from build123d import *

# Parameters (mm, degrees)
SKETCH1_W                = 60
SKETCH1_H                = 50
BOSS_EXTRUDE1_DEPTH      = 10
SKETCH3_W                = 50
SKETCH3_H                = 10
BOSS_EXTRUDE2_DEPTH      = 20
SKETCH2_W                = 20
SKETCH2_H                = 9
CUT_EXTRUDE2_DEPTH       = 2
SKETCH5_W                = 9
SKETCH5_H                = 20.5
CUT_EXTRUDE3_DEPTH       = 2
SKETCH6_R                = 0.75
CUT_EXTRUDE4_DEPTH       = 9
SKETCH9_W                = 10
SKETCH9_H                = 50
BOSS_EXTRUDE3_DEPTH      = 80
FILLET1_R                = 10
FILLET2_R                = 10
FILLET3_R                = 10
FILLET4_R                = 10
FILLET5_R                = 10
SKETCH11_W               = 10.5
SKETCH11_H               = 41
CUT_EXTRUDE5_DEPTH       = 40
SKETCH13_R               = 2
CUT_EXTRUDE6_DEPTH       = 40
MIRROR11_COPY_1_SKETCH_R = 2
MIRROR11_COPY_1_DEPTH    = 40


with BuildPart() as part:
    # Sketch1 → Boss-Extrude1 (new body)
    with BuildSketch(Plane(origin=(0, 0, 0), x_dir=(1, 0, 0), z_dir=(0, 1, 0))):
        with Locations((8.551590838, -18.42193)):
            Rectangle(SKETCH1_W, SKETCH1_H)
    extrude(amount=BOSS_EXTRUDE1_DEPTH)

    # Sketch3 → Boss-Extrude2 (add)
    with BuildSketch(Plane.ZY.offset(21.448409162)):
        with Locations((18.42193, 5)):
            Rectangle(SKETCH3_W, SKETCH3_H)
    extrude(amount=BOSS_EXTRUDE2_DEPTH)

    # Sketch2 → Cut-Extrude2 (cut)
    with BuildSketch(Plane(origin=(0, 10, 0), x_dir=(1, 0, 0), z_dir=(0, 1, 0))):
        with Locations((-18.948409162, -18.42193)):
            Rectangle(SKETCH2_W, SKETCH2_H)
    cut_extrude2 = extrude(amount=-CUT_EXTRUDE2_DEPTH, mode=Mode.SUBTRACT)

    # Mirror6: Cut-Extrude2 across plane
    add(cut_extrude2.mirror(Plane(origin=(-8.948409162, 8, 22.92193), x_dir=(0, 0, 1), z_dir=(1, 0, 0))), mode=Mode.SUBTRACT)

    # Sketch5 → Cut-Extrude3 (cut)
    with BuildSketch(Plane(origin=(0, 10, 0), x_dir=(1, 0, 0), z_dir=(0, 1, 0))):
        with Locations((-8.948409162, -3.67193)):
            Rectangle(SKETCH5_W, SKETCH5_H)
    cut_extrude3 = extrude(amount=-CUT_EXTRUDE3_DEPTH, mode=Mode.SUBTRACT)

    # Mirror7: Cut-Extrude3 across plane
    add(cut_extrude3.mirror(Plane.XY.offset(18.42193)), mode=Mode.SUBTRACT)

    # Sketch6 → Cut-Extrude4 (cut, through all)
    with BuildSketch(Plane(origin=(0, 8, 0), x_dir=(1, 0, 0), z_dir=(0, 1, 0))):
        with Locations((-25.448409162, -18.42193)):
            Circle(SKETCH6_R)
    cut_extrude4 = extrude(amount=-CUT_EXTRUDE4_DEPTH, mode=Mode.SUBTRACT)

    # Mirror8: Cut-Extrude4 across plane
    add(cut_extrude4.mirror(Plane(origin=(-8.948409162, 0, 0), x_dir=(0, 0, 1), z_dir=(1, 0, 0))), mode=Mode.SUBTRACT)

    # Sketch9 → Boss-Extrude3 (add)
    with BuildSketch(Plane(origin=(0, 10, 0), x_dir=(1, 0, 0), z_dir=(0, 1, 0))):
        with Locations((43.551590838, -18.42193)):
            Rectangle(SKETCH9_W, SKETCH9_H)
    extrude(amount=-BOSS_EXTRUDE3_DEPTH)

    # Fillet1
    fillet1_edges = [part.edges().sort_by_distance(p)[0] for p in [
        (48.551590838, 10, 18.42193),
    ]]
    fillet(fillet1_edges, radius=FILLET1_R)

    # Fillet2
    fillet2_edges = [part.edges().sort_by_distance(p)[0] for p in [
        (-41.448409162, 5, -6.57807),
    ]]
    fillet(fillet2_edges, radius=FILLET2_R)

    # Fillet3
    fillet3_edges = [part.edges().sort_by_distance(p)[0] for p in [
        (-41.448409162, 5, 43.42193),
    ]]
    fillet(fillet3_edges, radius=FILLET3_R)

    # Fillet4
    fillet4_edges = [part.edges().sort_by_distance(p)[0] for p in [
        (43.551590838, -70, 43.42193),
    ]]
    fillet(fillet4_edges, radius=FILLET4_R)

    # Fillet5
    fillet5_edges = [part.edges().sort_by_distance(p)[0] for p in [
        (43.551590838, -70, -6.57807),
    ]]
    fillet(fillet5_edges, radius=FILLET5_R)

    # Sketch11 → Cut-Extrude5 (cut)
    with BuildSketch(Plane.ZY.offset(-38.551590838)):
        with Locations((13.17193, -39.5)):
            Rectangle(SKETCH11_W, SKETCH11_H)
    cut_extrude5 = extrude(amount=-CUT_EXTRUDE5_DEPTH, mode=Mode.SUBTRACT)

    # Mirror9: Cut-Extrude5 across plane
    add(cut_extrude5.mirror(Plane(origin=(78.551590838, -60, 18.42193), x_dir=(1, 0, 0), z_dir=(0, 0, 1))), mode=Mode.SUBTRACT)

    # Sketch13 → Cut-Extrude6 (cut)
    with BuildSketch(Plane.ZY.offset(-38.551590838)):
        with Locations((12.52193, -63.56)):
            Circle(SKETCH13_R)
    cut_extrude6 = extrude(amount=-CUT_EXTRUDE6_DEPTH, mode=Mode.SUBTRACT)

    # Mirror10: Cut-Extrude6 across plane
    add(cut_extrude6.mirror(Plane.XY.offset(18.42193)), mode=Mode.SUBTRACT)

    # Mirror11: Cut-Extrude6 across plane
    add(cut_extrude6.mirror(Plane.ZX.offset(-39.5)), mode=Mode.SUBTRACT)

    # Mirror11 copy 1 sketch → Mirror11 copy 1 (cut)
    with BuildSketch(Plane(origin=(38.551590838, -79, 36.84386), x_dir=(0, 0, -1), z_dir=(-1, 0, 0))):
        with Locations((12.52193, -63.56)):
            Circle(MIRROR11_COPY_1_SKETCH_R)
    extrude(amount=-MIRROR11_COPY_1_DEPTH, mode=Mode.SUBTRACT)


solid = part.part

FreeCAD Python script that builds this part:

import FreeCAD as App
import Part
import Sketcher
from FreeCAD import Vector


def edges_at(feature, points):
    """Names of the edges that pass closest to the given points."""
    edges = feature.Shape.Edges
    near = lambda p: min(range(len(edges)), key=lambda i: edges[i].distToShape(Part.Vertex(*p))[0])
    return sorted({f"Edge{near(p) + 1}" for p in points})


def add_polygon(sketch, points):
    """Adds a closed chain of lines whose ends are joined by coincident constraints."""
    first, n = sketch.GeometryCount, len(points)
    for a, b in zip(points, points[1:] + points[:1]):
        sketch.addGeometry(Part.LineSegment(App.Vector(*a, 0), App.Vector(*b, 0)), False)
    for i in range(n):
        sketch.addConstraint(Sketcher.Constraint("Coincident", first + i, 2, first + (i + 1) % n, 1))

doc = App.newDocument("Part")
body = doc.addObject("PartDesign::Body", "Body")

sketch1 = body.newObject("Sketcher::SketchObject", "Sketch")
sketch1.AttachmentSupport = (doc.getObject("XZ_Plane"), [""])
sketch1.MapMode = "FlatFace"
add_polygon(sketch1, [(-21, -7), (-21, 43), (39, 43), (39, -7)])
sketch1.addConstraint([
    Sketcher.Constraint("Vertical", 0),
    Sketcher.Constraint("Horizontal", 1),
    Sketcher.Constraint("Vertical", 2),
    Sketcher.Constraint("Horizontal", 3),
    Sketcher.Constraint("DistanceX", 1, 1, 1, 2, 60.0),
    Sketcher.Constraint("DistanceY", 0, 1, 0, 2, 50.0),
    Sketcher.Constraint("DistanceX", 0, 2, -1, 1, 21.448409),
    Sketcher.Constraint("DistanceY", -1, 1, 0, 2, 43.42193),
])
pad1 = body.newObject("PartDesign::Pad", "Pad")
pad1.Profile = sketch1
pad1.Length = 10
pad1.Reversed = True

sketch2 = body.newObject("Sketcher::SketchObject", "Sketch001")
sketch2.AttachmentSupport = (doc.getObject("YZ_Plane"), [""])
sketch2.MapMode = "FlatFace"
sketch2.AttachmentOffset = App.Placement(Vector(0, 0, -21.448409), App.Rotation())
add_polygon(sketch2, [(10, -7), (0, -7), (0, 43), (10, 43)])
sketch2.addConstraint([
    Sketcher.Constraint("Horizontal", 0),
    Sketcher.Constraint("Vertical", 1),
    Sketcher.Constraint("Horizontal", 2),
    Sketcher.Constraint("Vertical", 3),
    Sketcher.Constraint("PointOnObject", 0, 2, -2),
    Sketcher.Constraint("DistanceX", 0, 2, 0, 1, 10.0),
    Sketcher.Constraint("DistanceY", 1, 1, 1, 2, 50.0),
    Sketcher.Constraint("DistanceY", 0, 2, -1, 1, 6.57807),
])
pad2 = body.newObject("PartDesign::Pad", "Pad001")
pad2.Profile = sketch2
pad2.Length = 20
pad2.Reversed = True

sketch3 = body.newObject("Sketcher::SketchObject", "Sketch002")
sketch3.AttachmentSupport = (doc.getObject("XZ_Plane"), [""])
sketch3.MapMode = "FlatFace"
sketch3.AttachmentOffset = App.Placement(Vector(0, 0, -10), App.Rotation())
add_polygon(sketch3, [(-29, 14), (-29, 23), (-9, 23), (-9, 14)])
sketch3.addConstraint([
    Sketcher.Constraint("Vertical", 0),
    Sketcher.Constraint("Horizontal", 1),
    Sketcher.Constraint("Vertical", 2),
    Sketcher.Constraint("Horizontal", 3),
    Sketcher.Constraint("DistanceX", 1, 1, 1, 2, 20.0),
    Sketcher.Constraint("DistanceY", 0, 1, 0, 2, 9.0),
    Sketcher.Constraint("DistanceX", 0, 2, -1, 1, 28.948409),
    Sketcher.Constraint("DistanceY", -1, 1, 0, 2, 22.92193),
])
pocket1 = body.newObject("PartDesign::Pocket", "Pocket")
pocket1.Profile = sketch3
pocket1.Length = 2
pocket1.Reversed = True
doc.recompute()

datumplane = body.newObject("PartDesign::Plane", "DatumPlane")
datumplane.AttachmentSupport = (doc.getObject("YZ_Plane"), [""])
datumplane.MapMode = "FlatFace"
datumplane.AttachmentOffset = App.Placement(Vector(0, 0, -8.948409), App.Rotation())
mirrored = body.newObject("PartDesign::Mirrored", "Mirrored")
mirrored.Originals = [pocket1]
mirrored.MirrorPlane = (datumplane, [""])
body.Tip = mirrored

sketch4 = body.newObject("Sketcher::SketchObject", "Sketch003")
sketch4.AttachmentSupport = (doc.getObject("XZ_Plane"), [""])
sketch4.MapMode = "FlatFace"
sketch4.AttachmentOffset = App.Placement(Vector(0, 0, -10), App.Rotation())
add_polygon(sketch4, [(-13, -7), (-13, 14), (-4, 14), (-4, -7)])
sketch4.addConstraint([
    Sketcher.Constraint("Vertical", 0),
    Sketcher.Constraint("Horizontal", 1),
    Sketcher.Constraint("Vertical", 2),
    Sketcher.Constraint("Horizontal", 3),
    Sketcher.Constraint("DistanceX", 1, 1, 1, 2, 9.0),
    Sketcher.Constraint("DistanceY", 0, 1, 0, 2, 20.5),
    Sketcher.Constraint("DistanceX", 0, 2, -1, 1, 13.448409),
    Sketcher.Constraint("DistanceY", -1, 1, 0, 2, 13.92193),
])
pocket2 = body.newObject("PartDesign::Pocket", "Pocket001")
pocket2.Profile = sketch4
pocket2.Length = 2
pocket2.Reversed = True
doc.recompute()

datumplane2 = body.newObject("PartDesign::Plane", "DatumPlane001")
datumplane2.AttachmentSupport = (doc.getObject("XY_Plane"), [""])
datumplane2.MapMode = "FlatFace"
datumplane2.AttachmentOffset = App.Placement(Vector(0, 0, 18.42193), App.Rotation())
mirrored2 = body.newObject("PartDesign::Mirrored", "Mirrored001")
mirrored2.Originals = [pocket2]
mirrored2.MirrorPlane = (datumplane2, [""])
body.Tip = mirrored2

sketch5 = body.newObject("Sketcher::SketchObject", "Sketch004")
sketch5.AttachmentSupport = (doc.getObject("XZ_Plane"), [""])
sketch5.MapMode = "FlatFace"
sketch5.AttachmentOffset = App.Placement(Vector(0, 0, -8), App.Rotation())
sketch5.addGeometry(Part.Circle(Vector(-25.4, 18.4, 0), Vector(0, 0, 1), 0.8), False)
sketch5.addConstraint([
    Sketcher.Constraint("Diameter", 0, 1.5),
    Sketcher.Constraint("DistanceX", 0, 3, -1, 1, 25.448409),
    Sketcher.Constraint("DistanceY", -1, 1, 0, 3, 18.42193),
])
pocket3 = body.newObject("PartDesign::Pocket", "Pocket002")
pocket3.Profile = sketch5
pocket3.Type = "ThroughAll"
pocket3.Reversed = True
doc.recompute()

datumplane3 = body.newObject("PartDesign::Plane", "DatumPlane002")
datumplane3.AttachmentSupport = (doc.getObject("YZ_Plane"), [""])
datumplane3.MapMode = "FlatFace"
datumplane3.AttachmentOffset = App.Placement(Vector(0, 0, -8.948409), App.Rotation())
mirrored3 = body.newObject("PartDesign::Mirrored", "Mirrored002")
mirrored3.Originals = [pocket3]
mirrored3.MirrorPlane = (datumplane3, [""])
body.Tip = mirrored3

sketch6 = body.newObject("Sketcher::SketchObject", "Sketch005")
sketch6.AttachmentSupport = (doc.getObject("XZ_Plane"), [""])
sketch6.MapMode = "FlatFace"
sketch6.AttachmentOffset = App.Placement(Vector(0, 0, -10), App.Rotation())
add_polygon(sketch6, [(39, -7), (39, 43), (49, 43), (49, -7)])
sketch6.addConstraint([
    Sketcher.Constraint("Vertical", 0),
    Sketcher.Constraint("Horizontal", 1),
    Sketcher.Constraint("Vertical", 2),
    Sketcher.Constraint("Horizontal", 3),
    Sketcher.Constraint("DistanceX", 1, 1, 1, 2, 10.0),
    Sketcher.Constraint("DistanceY", 0, 1, 0, 2, 50.0),
    Sketcher.Constraint("DistanceX", -1, 1, 0, 2, 38.551591),
    Sketcher.Constraint("DistanceY", -1, 1, 0, 2, 43.42193),
])
pad3 = body.newObject("PartDesign::Pad", "Pad002")
pad3.Profile = sketch6
pad3.Length = 80
doc.recompute()

fillet = body.newObject("PartDesign::Fillet", "Fillet")
fillet.Base = (pad3, edges_at(pad3, [(48.552, 10, 18.422)]))
fillet.Radius = 10
doc.recompute()

fillet2 = body.newObject("PartDesign::Fillet", "Fillet001")
fillet2.Base = (fillet, edges_at(fillet, [(-41.448, 5, -6.578)]))
fillet2.Radius = 10
doc.recompute()

fillet3 = body.newObject("PartDesign::Fillet", "Fillet002")
fillet3.Base = (fillet2, edges_at(fillet2, [(-41.448, 5, 43.422)]))
fillet3.Radius = 10
doc.recompute()

fillet4 = body.newObject("PartDesign::Fillet", "Fillet003")
fillet4.Base = (fillet3, edges_at(fillet3, [(43.552, -70, 43.422)]))
fillet4.Radius = 10
doc.recompute()

fillet5 = body.newObject("PartDesign::Fillet", "Fillet004")
fillet5.Base = (fillet4, edges_at(fillet4, [(43.552, -70, -6.578)]))
fillet5.Radius = 10

sketch7 = body.newObject("Sketcher::SketchObject", "Sketch006")
sketch7.AttachmentSupport = (doc.getObject("YZ_Plane"), [""])
sketch7.MapMode = "FlatFace"
sketch7.AttachmentOffset = App.Placement(Vector(0, 0, 38.551591), App.Rotation())
add_polygon(sketch7, [(-19, 8), (-60, 8), (-60, 18), (-19, 18)])
sketch7.addConstraint([
    Sketcher.Constraint("Horizontal", 0),
    Sketcher.Constraint("Vertical", 1),
    Sketcher.Constraint("Horizontal", 2),
    Sketcher.Constraint("Vertical", 3),
    Sketcher.Constraint("DistanceX", 0, 2, 0, 1, 41.0),
    Sketcher.Constraint("DistanceY", 1, 1, 1, 2, 10.5),
    Sketcher.Constraint("DistanceX", 0, 2, -1, 1, 60.0),
    Sketcher.Constraint("DistanceY", -1, 1, 0, 2, 7.92193),
])
pocket4 = body.newObject("PartDesign::Pocket", "Pocket003")
pocket4.Profile = sketch7
pocket4.Length = 40
pocket4.Reversed = True
doc.recompute()

datumplane4 = body.newObject("PartDesign::Plane", "DatumPlane003")
datumplane4.AttachmentSupport = (doc.getObject("XY_Plane"), [""])
datumplane4.MapMode = "FlatFace"
datumplane4.AttachmentOffset = App.Placement(Vector(0, 0, 18.42193), App.Rotation())
mirrored4 = body.newObject("PartDesign::Mirrored", "Mirrored003")
mirrored4.Originals = [pocket4]
mirrored4.MirrorPlane = (datumplane4, [""])
body.Tip = mirrored4

sketch8 = body.newObject("Sketcher::SketchObject", "Sketch007")
sketch8.AttachmentSupport = (doc.getObject("YZ_Plane"), [""])
sketch8.MapMode = "FlatFace"
sketch8.AttachmentOffset = App.Placement(Vector(0, 0, 38.551591), App.Rotation())
sketch8.addGeometry(Part.Circle(Vector(-63.6, 12.5, 0), Vector(0, 0, 1), 2), False)
sketch8.addConstraint([
    Sketcher.Constraint("Diameter", 0, 4.0),
    Sketcher.Constraint("DistanceX", 0, 3, -1, 1, 63.56),
    Sketcher.Constraint("DistanceY", -1, 1, 0, 3, 12.52193),
])
pocket5 = body.newObject("PartDesign::Pocket", "Pocket004")
pocket5.Profile = sketch8
pocket5.Length = 40
pocket5.Reversed = True
doc.recompute()

datumplane5 = body.newObject("PartDesign::Plane", "DatumPlane004")
datumplane5.AttachmentSupport = (doc.getObject("XY_Plane"), [""])
datumplane5.MapMode = "FlatFace"
datumplane5.AttachmentOffset = App.Placement(Vector(0, 0, 18.42193), App.Rotation())
mirrored5 = body.newObject("PartDesign::Mirrored", "Mirrored004")
mirrored5.Originals = [pocket5]
mirrored5.MirrorPlane = (datumplane5, [""])
body.Tip = mirrored5
doc.recompute()

datumplane6 = body.newObject("PartDesign::Plane", "DatumPlane005")
datumplane6.AttachmentSupport = (doc.getObject("XZ_Plane"), [""])
datumplane6.MapMode = "FlatFace"
datumplane6.AttachmentOffset = App.Placement(Vector(0, 0, 39.5), App.Rotation())
mirrored6 = body.newObject("PartDesign::Mirrored", "Mirrored005")
mirrored6.Originals = [pocket5]
mirrored6.MirrorPlane = (datumplane6, [""])
body.Tip = mirrored6

sketch9 = body.newObject("Sketcher::SketchObject", "Sketch008")
sketch9.AttachmentSupport = (doc.getObject("YZ_Plane"), [""])
sketch9.MapMode = "FlatFace"
sketch9.AttachmentOffset = App.Placement(Vector(0, 0, 38.551591), App.Rotation())
sketch9.addGeometry(Part.Circle(Vector(-15.4, 24.3, 0), Vector(0, 0, 1), 2), False)
sketch9.addConstraint([
    Sketcher.Constraint("Diameter", 0, 4.0),
    Sketcher.Constraint("DistanceX", 0, 3, -1, 1, 15.44),
    Sketcher.Constraint("DistanceY", -1, 1, 0, 3, 24.32193),
])
pocket6 = body.newObject("PartDesign::Pocket", "Pocket005")
pocket6.Profile = sketch9
pocket6.Length = 40
pocket6.Reversed = True

doc.recompute()
